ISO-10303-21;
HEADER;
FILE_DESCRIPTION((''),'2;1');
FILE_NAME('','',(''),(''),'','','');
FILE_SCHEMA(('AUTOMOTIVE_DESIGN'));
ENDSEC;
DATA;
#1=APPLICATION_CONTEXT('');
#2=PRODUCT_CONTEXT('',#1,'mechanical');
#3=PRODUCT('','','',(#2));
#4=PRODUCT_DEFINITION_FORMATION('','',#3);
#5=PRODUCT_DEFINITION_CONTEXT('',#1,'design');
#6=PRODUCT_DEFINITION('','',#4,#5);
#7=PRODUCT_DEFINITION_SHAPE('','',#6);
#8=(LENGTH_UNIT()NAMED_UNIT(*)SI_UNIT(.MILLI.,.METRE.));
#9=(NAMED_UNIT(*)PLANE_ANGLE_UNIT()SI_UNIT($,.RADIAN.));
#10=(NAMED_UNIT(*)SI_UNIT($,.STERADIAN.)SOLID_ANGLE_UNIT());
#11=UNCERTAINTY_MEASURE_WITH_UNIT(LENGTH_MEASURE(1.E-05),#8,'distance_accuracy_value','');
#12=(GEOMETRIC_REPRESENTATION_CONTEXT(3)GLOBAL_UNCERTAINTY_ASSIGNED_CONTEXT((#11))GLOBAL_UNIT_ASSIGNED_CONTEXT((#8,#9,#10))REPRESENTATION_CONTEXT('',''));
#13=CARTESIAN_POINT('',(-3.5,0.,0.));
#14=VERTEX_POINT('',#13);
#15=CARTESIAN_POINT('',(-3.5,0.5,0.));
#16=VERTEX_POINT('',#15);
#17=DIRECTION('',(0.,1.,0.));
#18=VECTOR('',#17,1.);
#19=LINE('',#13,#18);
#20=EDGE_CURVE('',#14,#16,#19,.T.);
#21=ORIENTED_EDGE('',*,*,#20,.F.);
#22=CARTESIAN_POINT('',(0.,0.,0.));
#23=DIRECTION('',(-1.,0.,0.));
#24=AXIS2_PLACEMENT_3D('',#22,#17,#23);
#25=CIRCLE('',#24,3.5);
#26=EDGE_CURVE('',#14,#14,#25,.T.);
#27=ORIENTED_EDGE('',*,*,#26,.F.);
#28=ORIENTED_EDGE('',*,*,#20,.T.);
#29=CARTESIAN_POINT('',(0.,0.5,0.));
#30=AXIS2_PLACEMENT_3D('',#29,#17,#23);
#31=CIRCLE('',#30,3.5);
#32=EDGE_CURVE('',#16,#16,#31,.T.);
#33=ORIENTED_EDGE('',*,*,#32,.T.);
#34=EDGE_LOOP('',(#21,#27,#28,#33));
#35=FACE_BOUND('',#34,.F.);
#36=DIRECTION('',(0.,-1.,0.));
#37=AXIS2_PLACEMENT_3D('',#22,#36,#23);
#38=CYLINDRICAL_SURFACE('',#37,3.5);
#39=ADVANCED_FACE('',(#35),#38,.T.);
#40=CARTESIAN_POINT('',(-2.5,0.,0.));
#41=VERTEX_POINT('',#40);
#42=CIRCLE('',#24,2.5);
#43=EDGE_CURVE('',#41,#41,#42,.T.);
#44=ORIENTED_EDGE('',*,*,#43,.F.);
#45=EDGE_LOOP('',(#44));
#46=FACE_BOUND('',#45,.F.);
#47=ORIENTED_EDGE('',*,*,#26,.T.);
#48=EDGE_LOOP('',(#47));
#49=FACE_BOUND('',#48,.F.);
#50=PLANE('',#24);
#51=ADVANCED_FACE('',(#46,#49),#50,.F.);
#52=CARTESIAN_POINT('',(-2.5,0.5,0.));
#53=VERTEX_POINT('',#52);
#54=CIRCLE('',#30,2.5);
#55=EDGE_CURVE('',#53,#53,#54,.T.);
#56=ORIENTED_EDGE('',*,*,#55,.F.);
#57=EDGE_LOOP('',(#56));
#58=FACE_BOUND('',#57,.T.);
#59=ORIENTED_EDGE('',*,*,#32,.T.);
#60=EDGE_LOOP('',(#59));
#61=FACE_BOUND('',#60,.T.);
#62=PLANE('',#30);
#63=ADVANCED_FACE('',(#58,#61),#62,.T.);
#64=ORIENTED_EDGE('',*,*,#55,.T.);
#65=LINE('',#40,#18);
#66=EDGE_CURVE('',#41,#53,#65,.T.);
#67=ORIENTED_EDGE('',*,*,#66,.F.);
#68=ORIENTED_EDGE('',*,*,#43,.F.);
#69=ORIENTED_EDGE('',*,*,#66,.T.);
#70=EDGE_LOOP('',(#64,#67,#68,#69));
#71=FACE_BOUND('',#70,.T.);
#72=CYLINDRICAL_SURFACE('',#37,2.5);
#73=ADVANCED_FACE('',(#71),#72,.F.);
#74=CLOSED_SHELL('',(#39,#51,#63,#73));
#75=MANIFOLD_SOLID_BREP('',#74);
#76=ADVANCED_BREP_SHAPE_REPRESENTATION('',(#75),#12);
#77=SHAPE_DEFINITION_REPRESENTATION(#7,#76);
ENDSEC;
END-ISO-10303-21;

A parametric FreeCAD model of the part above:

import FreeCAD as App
import Part
import Sketcher

V = App.Vector

doc = App.newDocument("Part")
body = doc.addObject("PartDesign::Body", "Body")

# Sketch on XZ plane
sketch1 = body.newObject("Sketcher::SketchObject", "Sketch")
sketch1.AttachmentSupport = (doc.getObject("XZ_Plane"), [""])
sketch1.MapMode = "FlatFace"
sketch1.addGeometry([
    Part.Circle(V(0, 0, 0), V(0, 0, 1), 3.5),
    Part.Circle(V(0, 0, 0), V(0, 0, 1), 2.5),
], False)
sketch1.addConstraint([
    Sketcher.Constraint("Coincident", 0, 3, -1, 1),
    Sketcher.Constraint("Coincident", 1, 3, -1, 1),
    Sketcher.Constraint("Diameter", 0, 7.0),
    Sketcher.Constraint("Diameter", 1, 5.0),
])
pad1 = body.newObject("PartDesign::Pad", "Pad")
pad1.Profile = sketch1
pad1.Length = 0.5
pad1.Reversed = True

doc.recompute()
